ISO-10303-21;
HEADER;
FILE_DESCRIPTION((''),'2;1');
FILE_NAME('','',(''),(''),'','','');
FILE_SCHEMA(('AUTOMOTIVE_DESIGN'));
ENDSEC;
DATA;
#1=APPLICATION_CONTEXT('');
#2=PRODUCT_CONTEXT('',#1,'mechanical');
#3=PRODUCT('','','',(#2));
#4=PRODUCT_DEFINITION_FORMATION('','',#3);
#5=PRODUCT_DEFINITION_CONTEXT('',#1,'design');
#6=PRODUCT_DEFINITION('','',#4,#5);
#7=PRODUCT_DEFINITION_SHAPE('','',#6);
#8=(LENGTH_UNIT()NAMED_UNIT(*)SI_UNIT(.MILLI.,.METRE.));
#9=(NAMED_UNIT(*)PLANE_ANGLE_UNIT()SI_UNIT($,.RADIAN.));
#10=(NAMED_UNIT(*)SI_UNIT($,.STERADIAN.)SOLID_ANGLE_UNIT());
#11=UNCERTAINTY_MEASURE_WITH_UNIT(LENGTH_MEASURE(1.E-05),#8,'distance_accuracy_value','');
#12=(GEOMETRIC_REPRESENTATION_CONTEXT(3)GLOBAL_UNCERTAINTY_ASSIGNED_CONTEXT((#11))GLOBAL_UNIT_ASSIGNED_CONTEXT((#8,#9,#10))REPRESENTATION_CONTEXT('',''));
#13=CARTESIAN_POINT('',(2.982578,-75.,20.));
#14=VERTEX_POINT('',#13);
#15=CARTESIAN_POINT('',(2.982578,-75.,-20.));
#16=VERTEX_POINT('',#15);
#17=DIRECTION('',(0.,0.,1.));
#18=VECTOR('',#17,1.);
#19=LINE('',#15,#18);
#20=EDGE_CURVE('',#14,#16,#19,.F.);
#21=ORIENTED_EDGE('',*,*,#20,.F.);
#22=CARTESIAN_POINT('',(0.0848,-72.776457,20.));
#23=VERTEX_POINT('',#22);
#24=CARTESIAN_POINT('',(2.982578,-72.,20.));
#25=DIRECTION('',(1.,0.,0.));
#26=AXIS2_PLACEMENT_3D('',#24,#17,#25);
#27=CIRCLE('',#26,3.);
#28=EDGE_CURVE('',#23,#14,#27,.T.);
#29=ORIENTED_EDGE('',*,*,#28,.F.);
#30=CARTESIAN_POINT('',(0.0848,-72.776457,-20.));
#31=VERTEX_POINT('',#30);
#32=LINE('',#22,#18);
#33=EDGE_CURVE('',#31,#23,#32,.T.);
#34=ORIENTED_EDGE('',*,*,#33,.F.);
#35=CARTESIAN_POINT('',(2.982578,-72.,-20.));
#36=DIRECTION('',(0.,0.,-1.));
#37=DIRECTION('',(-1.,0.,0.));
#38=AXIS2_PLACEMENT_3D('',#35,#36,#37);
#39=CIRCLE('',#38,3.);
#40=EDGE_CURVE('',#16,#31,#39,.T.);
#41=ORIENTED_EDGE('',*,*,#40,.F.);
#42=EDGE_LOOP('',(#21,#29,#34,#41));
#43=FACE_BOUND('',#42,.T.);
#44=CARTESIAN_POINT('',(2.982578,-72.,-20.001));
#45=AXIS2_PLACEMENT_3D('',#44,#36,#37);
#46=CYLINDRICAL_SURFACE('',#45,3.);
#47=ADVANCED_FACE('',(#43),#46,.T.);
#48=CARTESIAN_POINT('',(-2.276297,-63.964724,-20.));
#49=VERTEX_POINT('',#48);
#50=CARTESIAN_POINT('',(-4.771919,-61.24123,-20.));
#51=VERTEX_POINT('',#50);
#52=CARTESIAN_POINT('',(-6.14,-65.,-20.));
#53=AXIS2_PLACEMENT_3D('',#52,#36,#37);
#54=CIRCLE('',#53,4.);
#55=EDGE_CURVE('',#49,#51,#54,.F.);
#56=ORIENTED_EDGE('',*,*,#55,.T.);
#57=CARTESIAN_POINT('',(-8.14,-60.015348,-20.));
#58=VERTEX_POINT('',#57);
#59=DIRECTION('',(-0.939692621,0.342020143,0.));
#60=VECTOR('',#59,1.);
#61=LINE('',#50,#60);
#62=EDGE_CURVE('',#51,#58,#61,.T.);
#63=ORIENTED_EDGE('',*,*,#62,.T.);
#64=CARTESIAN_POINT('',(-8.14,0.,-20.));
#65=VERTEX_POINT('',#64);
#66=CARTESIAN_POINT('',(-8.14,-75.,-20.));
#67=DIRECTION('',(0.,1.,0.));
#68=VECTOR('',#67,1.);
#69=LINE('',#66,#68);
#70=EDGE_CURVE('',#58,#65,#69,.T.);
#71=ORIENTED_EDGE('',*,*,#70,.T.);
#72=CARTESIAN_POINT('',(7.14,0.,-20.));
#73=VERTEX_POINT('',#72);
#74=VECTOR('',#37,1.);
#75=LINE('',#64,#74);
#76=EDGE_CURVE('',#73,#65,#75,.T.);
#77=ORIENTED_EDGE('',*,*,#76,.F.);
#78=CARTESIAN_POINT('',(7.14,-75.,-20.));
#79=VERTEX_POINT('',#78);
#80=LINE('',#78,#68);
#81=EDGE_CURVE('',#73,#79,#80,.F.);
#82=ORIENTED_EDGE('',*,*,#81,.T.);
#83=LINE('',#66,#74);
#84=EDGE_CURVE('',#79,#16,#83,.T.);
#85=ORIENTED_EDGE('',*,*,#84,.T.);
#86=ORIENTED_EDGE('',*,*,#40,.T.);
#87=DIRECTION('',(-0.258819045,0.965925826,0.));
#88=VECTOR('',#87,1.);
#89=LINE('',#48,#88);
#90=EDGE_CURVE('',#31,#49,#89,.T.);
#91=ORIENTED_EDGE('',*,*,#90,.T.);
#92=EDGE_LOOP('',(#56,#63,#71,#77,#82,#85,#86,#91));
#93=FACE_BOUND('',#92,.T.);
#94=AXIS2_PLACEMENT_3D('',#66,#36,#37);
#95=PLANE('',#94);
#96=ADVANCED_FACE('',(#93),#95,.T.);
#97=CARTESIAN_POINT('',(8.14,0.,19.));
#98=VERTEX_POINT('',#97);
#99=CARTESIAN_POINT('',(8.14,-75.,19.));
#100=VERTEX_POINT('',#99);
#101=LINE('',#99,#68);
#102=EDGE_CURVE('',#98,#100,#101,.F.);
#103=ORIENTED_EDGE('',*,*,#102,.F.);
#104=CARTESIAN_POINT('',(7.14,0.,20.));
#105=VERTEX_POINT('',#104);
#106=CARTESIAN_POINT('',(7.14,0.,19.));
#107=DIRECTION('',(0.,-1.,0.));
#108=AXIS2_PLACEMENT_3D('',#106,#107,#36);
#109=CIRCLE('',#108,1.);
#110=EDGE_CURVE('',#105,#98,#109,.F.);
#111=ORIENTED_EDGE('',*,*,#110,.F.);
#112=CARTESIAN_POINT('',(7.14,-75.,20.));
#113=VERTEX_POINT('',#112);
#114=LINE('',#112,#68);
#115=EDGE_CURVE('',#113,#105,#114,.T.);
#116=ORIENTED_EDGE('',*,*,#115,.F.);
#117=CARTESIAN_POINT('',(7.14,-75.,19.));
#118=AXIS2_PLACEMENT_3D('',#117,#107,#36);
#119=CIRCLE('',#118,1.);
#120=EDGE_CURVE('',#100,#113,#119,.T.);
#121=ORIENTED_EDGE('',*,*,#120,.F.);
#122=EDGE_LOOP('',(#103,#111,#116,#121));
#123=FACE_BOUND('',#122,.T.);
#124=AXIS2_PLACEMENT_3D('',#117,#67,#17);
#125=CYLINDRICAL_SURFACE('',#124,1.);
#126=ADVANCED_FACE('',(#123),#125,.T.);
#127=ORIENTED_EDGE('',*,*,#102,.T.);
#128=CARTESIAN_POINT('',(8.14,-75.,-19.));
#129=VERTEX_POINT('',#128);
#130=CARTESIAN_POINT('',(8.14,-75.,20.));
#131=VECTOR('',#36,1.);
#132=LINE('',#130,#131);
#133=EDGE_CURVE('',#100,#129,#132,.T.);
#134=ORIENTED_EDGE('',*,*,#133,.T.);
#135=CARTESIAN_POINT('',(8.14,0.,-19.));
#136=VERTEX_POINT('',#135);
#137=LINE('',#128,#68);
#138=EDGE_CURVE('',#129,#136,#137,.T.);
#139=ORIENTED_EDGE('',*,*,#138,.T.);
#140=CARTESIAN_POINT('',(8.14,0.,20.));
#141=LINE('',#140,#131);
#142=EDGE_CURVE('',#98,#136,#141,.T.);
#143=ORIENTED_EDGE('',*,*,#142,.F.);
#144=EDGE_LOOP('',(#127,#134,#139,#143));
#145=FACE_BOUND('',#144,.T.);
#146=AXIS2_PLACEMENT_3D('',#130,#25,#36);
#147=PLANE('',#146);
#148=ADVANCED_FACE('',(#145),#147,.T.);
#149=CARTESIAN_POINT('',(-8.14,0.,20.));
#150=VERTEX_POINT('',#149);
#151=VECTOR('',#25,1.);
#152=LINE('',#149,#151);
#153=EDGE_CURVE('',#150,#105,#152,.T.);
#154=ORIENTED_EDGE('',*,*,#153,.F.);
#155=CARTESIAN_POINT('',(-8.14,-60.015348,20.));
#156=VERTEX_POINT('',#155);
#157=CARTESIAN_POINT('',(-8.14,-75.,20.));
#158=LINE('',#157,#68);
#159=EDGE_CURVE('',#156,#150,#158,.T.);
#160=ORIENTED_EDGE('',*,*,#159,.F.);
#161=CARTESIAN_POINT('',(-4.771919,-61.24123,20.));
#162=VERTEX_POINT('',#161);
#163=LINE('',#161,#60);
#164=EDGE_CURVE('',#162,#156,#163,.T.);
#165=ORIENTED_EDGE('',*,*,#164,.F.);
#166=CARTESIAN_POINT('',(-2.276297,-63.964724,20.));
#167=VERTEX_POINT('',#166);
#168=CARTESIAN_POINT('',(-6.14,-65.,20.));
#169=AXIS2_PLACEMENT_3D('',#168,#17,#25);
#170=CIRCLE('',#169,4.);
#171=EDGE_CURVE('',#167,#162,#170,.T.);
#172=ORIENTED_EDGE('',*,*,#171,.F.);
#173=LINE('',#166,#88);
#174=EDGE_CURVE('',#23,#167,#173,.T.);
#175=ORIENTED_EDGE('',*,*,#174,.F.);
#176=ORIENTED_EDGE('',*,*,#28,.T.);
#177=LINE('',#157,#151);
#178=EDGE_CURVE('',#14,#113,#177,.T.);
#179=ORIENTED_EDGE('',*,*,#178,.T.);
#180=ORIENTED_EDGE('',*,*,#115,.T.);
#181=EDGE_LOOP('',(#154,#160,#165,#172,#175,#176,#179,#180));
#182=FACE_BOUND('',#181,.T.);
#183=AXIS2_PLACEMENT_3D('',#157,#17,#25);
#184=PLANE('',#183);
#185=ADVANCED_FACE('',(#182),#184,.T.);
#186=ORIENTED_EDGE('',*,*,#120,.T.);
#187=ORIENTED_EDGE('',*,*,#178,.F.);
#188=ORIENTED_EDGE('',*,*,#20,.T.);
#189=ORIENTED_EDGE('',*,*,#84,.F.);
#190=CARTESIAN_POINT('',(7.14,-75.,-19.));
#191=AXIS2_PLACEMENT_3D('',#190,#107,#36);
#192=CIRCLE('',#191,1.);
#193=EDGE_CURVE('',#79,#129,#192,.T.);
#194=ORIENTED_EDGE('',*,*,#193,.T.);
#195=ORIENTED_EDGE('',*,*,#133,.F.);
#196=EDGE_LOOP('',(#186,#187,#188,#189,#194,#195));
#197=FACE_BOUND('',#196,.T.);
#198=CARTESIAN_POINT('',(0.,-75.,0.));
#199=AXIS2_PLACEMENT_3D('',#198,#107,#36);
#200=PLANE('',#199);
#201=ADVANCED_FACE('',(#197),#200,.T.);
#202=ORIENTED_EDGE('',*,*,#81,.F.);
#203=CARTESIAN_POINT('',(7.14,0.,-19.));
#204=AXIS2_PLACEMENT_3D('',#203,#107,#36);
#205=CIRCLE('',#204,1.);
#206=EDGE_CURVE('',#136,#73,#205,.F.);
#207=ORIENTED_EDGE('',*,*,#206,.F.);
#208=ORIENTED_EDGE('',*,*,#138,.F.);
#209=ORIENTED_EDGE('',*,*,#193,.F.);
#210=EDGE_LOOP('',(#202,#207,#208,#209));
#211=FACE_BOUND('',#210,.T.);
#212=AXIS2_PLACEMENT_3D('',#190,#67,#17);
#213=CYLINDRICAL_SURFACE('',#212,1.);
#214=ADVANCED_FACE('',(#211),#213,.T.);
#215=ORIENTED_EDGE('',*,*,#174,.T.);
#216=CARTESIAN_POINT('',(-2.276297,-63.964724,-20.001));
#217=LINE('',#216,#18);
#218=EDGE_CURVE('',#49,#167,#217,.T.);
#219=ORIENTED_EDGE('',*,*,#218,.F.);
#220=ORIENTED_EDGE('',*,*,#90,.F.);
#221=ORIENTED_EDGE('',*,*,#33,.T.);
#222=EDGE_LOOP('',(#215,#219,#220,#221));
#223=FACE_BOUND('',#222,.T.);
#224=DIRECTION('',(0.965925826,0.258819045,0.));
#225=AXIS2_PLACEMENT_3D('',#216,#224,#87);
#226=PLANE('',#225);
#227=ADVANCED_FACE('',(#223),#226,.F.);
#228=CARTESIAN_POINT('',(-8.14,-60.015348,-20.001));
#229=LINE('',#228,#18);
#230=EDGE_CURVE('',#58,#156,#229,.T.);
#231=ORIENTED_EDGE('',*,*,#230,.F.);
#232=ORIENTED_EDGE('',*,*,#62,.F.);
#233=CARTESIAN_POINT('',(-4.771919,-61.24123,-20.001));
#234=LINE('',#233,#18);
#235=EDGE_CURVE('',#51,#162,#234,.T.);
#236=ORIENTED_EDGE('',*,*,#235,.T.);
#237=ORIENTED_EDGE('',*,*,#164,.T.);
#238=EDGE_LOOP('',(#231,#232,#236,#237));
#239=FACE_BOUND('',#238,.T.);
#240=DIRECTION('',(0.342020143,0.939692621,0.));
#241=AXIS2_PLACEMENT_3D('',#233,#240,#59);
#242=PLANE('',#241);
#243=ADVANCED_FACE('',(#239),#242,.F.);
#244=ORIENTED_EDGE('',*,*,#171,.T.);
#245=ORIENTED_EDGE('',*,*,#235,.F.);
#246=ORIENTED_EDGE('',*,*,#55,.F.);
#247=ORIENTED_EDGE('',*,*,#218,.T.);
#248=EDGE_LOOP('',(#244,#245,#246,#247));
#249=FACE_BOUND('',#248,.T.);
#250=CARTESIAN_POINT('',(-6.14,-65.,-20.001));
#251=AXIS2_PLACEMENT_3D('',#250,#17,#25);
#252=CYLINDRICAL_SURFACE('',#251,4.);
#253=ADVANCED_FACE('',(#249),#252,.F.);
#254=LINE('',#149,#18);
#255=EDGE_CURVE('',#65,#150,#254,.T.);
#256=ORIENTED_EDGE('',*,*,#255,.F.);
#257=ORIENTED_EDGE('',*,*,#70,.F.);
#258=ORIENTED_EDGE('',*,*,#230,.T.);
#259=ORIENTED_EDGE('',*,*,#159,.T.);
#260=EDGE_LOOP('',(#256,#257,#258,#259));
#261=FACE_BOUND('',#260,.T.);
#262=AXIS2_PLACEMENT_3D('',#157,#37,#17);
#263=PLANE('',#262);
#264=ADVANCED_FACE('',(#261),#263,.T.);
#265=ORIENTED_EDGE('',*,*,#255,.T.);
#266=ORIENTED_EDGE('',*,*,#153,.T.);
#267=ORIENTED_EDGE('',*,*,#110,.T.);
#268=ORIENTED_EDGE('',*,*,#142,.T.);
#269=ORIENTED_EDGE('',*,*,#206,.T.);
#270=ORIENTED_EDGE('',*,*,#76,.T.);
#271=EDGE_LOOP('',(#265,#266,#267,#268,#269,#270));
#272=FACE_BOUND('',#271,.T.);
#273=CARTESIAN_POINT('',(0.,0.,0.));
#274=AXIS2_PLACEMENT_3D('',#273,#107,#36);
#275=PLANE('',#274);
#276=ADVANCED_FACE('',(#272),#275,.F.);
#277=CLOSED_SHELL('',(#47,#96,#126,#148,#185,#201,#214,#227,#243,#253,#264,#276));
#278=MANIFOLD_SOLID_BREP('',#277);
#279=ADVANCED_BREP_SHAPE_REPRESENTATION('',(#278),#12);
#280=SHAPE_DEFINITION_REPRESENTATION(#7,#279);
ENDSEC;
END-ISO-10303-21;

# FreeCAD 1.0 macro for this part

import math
import FreeCAD as App
import Part
import Sketcher
Q = App.Units.Quantity


def edges_at(feature, points):
    """Names of the edges that pass closest to the given points."""
    edges = feature.Shape.Edges
    near = lambda p: min(range(len(edges)), key=lambda i: edges[i].distToShape(Part.Vertex(*p))[0])
    return sorted({f"Edge{near(p) + 1}" for p in points})

doc = App.newDocument("Part")
body = doc.addObject("PartDesign::Body", "Body")

# Sketch on XZ plane
sketch1 = body.newObject("Sketcher::SketchObject", "Sketch")
sketch1.AttachmentSupport = (doc.getObject("XZ_Plane"), [""])
sketch1.MapMode = "FlatFace"
sketch1.addGeometry([
    Part.LineSegment(App.Vector(-8, -20, 0), App.Vector(-8, 20, 0)),
    Part.LineSegment(App.Vector(-8, 20, 0), App.Vector(8, 20, 0)),
    Part.LineSegment(App.Vector(8, 20, 0), App.Vector(8, -20, 0)),
    Part.LineSegment(App.Vector(8, -20, 0), App.Vector(-8, -20, 0)),
], False)
sketch1.addConstraint([
    Sketcher.Constraint("Coincident", 0, 2, 1, 1),
    Sketcher.Constraint("Coincident", 1, 2, 2, 1),
    Sketcher.Constraint("Coincident", 2, 2, 3, 1),
    Sketcher.Constraint("Coincident", 3, 2, 0, 1),
    Sketcher.Constraint("Vertical", 0),
    Sketcher.Constraint("Horizontal", 1),
    Sketcher.Constraint("Vertical", 2),
    Sketcher.Constraint("Horizontal", 3),
    Sketcher.Constraint("Symmetric", 0, 2, 2, 2, -1, 1),
    Sketcher.Constraint("DistanceY", 0, 1, 0, 2, Q("40 mm")),
    Sketcher.Constraint("DistanceX", 1, 1, 1, 2, Q("16.28 mm")),
])
pad1 = body.newObject("PartDesign::Pad", "Pad")
pad1.Profile = sketch1
pad1.Length = 75

# Sketch on XY plane
sketch2 = body.newObject("Sketcher::SketchObject", "Sketch001")
sketch2.AttachmentSupport = (doc.getObject("XY_Plane"), [""])
sketch2.MapMode = "FlatFace"
sketch2.AttachmentOffset = App.Placement(App.Vector(0, 0, 20), App.Rotation())
sketch2.addGeometry([
    Part.LineSegment(App.Vector(-4.8, -61.2, 0), App.Vector(-8.1, -60, 0)),  # 0
    Part.LineSegment(App.Vector(-8.1, -60, 0), App.Vector(-8.1, -75, 0)),  # 1
    Part.LineSegment(App.Vector(-8.1, -75, 0), App.Vector(0.7, -75, 0)),  # 2
    Part.LineSegment(App.Vector(0.7, -75, 0), App.Vector(-2.3, -64, 0)),  # 3
    Part.ArcOfCircle(Part.Circle(App.Vector(-6.1, -65, 0), App.Vector(0, 0, 1), 4), math.radians(15), math.radians(70)),  # 4
], False)
sketch2.addConstraint([
    Sketcher.Constraint("Coincident", 0, 2, 1, 1),
    Sketcher.Constraint("Coincident", 1, 2, 2, 1),
    Sketcher.Constraint("Coincident", 2, 2, 3, 1),
    Sketcher.Constraint("Tangent", 3, 2, 4, 1),
    Sketcher.Constraint("Tangent", 4, 2, 0, 1),
    Sketcher.Constraint("Vertical", 1),
    Sketcher.Constraint("Horizontal", 2),
    Sketcher.Constraint("Radius", 4, Q("4 mm")),
    Sketcher.Constraint("Angle", 0, Q("160 deg")),
    Sketcher.Constraint("Angle", 3, Q("105 deg")),
    Sketcher.Constraint("DistanceY", 4, 3, -1, 1, Q("65 mm")),
    Sketcher.Constraint("DistanceY", 1, 2, -1, 1, Q("75 mm")),
    Sketcher.Constraint("DistanceX", 0, 2, 4, 3, Q("2 mm")),
    Sketcher.Constraint("DistanceX", 4, 3, -1, 1, Q("6.14 mm")),
])
pocket1 = body.newObject("PartDesign::Pocket", "Pocket")
pocket1.Profile = sketch2
pocket1.Type = "UpToFirst"
doc.recompute()

fillet = body.newObject("PartDesign::Fillet", "Fillet")
fillet.Base = (pocket1, edges_at(pocket1, [(0.681, -75, 0)]))
fillet.Radius = 3
doc.recompute()

fillet2 = body.newObject("PartDesign::Fillet", "Fillet001")
fillet2.Base = (fillet, edges_at(fillet, [(8.14, -37.5, 20), (8.14, -37.5, -20)]))
fillet2.Radius = 1

doc.recompute()
